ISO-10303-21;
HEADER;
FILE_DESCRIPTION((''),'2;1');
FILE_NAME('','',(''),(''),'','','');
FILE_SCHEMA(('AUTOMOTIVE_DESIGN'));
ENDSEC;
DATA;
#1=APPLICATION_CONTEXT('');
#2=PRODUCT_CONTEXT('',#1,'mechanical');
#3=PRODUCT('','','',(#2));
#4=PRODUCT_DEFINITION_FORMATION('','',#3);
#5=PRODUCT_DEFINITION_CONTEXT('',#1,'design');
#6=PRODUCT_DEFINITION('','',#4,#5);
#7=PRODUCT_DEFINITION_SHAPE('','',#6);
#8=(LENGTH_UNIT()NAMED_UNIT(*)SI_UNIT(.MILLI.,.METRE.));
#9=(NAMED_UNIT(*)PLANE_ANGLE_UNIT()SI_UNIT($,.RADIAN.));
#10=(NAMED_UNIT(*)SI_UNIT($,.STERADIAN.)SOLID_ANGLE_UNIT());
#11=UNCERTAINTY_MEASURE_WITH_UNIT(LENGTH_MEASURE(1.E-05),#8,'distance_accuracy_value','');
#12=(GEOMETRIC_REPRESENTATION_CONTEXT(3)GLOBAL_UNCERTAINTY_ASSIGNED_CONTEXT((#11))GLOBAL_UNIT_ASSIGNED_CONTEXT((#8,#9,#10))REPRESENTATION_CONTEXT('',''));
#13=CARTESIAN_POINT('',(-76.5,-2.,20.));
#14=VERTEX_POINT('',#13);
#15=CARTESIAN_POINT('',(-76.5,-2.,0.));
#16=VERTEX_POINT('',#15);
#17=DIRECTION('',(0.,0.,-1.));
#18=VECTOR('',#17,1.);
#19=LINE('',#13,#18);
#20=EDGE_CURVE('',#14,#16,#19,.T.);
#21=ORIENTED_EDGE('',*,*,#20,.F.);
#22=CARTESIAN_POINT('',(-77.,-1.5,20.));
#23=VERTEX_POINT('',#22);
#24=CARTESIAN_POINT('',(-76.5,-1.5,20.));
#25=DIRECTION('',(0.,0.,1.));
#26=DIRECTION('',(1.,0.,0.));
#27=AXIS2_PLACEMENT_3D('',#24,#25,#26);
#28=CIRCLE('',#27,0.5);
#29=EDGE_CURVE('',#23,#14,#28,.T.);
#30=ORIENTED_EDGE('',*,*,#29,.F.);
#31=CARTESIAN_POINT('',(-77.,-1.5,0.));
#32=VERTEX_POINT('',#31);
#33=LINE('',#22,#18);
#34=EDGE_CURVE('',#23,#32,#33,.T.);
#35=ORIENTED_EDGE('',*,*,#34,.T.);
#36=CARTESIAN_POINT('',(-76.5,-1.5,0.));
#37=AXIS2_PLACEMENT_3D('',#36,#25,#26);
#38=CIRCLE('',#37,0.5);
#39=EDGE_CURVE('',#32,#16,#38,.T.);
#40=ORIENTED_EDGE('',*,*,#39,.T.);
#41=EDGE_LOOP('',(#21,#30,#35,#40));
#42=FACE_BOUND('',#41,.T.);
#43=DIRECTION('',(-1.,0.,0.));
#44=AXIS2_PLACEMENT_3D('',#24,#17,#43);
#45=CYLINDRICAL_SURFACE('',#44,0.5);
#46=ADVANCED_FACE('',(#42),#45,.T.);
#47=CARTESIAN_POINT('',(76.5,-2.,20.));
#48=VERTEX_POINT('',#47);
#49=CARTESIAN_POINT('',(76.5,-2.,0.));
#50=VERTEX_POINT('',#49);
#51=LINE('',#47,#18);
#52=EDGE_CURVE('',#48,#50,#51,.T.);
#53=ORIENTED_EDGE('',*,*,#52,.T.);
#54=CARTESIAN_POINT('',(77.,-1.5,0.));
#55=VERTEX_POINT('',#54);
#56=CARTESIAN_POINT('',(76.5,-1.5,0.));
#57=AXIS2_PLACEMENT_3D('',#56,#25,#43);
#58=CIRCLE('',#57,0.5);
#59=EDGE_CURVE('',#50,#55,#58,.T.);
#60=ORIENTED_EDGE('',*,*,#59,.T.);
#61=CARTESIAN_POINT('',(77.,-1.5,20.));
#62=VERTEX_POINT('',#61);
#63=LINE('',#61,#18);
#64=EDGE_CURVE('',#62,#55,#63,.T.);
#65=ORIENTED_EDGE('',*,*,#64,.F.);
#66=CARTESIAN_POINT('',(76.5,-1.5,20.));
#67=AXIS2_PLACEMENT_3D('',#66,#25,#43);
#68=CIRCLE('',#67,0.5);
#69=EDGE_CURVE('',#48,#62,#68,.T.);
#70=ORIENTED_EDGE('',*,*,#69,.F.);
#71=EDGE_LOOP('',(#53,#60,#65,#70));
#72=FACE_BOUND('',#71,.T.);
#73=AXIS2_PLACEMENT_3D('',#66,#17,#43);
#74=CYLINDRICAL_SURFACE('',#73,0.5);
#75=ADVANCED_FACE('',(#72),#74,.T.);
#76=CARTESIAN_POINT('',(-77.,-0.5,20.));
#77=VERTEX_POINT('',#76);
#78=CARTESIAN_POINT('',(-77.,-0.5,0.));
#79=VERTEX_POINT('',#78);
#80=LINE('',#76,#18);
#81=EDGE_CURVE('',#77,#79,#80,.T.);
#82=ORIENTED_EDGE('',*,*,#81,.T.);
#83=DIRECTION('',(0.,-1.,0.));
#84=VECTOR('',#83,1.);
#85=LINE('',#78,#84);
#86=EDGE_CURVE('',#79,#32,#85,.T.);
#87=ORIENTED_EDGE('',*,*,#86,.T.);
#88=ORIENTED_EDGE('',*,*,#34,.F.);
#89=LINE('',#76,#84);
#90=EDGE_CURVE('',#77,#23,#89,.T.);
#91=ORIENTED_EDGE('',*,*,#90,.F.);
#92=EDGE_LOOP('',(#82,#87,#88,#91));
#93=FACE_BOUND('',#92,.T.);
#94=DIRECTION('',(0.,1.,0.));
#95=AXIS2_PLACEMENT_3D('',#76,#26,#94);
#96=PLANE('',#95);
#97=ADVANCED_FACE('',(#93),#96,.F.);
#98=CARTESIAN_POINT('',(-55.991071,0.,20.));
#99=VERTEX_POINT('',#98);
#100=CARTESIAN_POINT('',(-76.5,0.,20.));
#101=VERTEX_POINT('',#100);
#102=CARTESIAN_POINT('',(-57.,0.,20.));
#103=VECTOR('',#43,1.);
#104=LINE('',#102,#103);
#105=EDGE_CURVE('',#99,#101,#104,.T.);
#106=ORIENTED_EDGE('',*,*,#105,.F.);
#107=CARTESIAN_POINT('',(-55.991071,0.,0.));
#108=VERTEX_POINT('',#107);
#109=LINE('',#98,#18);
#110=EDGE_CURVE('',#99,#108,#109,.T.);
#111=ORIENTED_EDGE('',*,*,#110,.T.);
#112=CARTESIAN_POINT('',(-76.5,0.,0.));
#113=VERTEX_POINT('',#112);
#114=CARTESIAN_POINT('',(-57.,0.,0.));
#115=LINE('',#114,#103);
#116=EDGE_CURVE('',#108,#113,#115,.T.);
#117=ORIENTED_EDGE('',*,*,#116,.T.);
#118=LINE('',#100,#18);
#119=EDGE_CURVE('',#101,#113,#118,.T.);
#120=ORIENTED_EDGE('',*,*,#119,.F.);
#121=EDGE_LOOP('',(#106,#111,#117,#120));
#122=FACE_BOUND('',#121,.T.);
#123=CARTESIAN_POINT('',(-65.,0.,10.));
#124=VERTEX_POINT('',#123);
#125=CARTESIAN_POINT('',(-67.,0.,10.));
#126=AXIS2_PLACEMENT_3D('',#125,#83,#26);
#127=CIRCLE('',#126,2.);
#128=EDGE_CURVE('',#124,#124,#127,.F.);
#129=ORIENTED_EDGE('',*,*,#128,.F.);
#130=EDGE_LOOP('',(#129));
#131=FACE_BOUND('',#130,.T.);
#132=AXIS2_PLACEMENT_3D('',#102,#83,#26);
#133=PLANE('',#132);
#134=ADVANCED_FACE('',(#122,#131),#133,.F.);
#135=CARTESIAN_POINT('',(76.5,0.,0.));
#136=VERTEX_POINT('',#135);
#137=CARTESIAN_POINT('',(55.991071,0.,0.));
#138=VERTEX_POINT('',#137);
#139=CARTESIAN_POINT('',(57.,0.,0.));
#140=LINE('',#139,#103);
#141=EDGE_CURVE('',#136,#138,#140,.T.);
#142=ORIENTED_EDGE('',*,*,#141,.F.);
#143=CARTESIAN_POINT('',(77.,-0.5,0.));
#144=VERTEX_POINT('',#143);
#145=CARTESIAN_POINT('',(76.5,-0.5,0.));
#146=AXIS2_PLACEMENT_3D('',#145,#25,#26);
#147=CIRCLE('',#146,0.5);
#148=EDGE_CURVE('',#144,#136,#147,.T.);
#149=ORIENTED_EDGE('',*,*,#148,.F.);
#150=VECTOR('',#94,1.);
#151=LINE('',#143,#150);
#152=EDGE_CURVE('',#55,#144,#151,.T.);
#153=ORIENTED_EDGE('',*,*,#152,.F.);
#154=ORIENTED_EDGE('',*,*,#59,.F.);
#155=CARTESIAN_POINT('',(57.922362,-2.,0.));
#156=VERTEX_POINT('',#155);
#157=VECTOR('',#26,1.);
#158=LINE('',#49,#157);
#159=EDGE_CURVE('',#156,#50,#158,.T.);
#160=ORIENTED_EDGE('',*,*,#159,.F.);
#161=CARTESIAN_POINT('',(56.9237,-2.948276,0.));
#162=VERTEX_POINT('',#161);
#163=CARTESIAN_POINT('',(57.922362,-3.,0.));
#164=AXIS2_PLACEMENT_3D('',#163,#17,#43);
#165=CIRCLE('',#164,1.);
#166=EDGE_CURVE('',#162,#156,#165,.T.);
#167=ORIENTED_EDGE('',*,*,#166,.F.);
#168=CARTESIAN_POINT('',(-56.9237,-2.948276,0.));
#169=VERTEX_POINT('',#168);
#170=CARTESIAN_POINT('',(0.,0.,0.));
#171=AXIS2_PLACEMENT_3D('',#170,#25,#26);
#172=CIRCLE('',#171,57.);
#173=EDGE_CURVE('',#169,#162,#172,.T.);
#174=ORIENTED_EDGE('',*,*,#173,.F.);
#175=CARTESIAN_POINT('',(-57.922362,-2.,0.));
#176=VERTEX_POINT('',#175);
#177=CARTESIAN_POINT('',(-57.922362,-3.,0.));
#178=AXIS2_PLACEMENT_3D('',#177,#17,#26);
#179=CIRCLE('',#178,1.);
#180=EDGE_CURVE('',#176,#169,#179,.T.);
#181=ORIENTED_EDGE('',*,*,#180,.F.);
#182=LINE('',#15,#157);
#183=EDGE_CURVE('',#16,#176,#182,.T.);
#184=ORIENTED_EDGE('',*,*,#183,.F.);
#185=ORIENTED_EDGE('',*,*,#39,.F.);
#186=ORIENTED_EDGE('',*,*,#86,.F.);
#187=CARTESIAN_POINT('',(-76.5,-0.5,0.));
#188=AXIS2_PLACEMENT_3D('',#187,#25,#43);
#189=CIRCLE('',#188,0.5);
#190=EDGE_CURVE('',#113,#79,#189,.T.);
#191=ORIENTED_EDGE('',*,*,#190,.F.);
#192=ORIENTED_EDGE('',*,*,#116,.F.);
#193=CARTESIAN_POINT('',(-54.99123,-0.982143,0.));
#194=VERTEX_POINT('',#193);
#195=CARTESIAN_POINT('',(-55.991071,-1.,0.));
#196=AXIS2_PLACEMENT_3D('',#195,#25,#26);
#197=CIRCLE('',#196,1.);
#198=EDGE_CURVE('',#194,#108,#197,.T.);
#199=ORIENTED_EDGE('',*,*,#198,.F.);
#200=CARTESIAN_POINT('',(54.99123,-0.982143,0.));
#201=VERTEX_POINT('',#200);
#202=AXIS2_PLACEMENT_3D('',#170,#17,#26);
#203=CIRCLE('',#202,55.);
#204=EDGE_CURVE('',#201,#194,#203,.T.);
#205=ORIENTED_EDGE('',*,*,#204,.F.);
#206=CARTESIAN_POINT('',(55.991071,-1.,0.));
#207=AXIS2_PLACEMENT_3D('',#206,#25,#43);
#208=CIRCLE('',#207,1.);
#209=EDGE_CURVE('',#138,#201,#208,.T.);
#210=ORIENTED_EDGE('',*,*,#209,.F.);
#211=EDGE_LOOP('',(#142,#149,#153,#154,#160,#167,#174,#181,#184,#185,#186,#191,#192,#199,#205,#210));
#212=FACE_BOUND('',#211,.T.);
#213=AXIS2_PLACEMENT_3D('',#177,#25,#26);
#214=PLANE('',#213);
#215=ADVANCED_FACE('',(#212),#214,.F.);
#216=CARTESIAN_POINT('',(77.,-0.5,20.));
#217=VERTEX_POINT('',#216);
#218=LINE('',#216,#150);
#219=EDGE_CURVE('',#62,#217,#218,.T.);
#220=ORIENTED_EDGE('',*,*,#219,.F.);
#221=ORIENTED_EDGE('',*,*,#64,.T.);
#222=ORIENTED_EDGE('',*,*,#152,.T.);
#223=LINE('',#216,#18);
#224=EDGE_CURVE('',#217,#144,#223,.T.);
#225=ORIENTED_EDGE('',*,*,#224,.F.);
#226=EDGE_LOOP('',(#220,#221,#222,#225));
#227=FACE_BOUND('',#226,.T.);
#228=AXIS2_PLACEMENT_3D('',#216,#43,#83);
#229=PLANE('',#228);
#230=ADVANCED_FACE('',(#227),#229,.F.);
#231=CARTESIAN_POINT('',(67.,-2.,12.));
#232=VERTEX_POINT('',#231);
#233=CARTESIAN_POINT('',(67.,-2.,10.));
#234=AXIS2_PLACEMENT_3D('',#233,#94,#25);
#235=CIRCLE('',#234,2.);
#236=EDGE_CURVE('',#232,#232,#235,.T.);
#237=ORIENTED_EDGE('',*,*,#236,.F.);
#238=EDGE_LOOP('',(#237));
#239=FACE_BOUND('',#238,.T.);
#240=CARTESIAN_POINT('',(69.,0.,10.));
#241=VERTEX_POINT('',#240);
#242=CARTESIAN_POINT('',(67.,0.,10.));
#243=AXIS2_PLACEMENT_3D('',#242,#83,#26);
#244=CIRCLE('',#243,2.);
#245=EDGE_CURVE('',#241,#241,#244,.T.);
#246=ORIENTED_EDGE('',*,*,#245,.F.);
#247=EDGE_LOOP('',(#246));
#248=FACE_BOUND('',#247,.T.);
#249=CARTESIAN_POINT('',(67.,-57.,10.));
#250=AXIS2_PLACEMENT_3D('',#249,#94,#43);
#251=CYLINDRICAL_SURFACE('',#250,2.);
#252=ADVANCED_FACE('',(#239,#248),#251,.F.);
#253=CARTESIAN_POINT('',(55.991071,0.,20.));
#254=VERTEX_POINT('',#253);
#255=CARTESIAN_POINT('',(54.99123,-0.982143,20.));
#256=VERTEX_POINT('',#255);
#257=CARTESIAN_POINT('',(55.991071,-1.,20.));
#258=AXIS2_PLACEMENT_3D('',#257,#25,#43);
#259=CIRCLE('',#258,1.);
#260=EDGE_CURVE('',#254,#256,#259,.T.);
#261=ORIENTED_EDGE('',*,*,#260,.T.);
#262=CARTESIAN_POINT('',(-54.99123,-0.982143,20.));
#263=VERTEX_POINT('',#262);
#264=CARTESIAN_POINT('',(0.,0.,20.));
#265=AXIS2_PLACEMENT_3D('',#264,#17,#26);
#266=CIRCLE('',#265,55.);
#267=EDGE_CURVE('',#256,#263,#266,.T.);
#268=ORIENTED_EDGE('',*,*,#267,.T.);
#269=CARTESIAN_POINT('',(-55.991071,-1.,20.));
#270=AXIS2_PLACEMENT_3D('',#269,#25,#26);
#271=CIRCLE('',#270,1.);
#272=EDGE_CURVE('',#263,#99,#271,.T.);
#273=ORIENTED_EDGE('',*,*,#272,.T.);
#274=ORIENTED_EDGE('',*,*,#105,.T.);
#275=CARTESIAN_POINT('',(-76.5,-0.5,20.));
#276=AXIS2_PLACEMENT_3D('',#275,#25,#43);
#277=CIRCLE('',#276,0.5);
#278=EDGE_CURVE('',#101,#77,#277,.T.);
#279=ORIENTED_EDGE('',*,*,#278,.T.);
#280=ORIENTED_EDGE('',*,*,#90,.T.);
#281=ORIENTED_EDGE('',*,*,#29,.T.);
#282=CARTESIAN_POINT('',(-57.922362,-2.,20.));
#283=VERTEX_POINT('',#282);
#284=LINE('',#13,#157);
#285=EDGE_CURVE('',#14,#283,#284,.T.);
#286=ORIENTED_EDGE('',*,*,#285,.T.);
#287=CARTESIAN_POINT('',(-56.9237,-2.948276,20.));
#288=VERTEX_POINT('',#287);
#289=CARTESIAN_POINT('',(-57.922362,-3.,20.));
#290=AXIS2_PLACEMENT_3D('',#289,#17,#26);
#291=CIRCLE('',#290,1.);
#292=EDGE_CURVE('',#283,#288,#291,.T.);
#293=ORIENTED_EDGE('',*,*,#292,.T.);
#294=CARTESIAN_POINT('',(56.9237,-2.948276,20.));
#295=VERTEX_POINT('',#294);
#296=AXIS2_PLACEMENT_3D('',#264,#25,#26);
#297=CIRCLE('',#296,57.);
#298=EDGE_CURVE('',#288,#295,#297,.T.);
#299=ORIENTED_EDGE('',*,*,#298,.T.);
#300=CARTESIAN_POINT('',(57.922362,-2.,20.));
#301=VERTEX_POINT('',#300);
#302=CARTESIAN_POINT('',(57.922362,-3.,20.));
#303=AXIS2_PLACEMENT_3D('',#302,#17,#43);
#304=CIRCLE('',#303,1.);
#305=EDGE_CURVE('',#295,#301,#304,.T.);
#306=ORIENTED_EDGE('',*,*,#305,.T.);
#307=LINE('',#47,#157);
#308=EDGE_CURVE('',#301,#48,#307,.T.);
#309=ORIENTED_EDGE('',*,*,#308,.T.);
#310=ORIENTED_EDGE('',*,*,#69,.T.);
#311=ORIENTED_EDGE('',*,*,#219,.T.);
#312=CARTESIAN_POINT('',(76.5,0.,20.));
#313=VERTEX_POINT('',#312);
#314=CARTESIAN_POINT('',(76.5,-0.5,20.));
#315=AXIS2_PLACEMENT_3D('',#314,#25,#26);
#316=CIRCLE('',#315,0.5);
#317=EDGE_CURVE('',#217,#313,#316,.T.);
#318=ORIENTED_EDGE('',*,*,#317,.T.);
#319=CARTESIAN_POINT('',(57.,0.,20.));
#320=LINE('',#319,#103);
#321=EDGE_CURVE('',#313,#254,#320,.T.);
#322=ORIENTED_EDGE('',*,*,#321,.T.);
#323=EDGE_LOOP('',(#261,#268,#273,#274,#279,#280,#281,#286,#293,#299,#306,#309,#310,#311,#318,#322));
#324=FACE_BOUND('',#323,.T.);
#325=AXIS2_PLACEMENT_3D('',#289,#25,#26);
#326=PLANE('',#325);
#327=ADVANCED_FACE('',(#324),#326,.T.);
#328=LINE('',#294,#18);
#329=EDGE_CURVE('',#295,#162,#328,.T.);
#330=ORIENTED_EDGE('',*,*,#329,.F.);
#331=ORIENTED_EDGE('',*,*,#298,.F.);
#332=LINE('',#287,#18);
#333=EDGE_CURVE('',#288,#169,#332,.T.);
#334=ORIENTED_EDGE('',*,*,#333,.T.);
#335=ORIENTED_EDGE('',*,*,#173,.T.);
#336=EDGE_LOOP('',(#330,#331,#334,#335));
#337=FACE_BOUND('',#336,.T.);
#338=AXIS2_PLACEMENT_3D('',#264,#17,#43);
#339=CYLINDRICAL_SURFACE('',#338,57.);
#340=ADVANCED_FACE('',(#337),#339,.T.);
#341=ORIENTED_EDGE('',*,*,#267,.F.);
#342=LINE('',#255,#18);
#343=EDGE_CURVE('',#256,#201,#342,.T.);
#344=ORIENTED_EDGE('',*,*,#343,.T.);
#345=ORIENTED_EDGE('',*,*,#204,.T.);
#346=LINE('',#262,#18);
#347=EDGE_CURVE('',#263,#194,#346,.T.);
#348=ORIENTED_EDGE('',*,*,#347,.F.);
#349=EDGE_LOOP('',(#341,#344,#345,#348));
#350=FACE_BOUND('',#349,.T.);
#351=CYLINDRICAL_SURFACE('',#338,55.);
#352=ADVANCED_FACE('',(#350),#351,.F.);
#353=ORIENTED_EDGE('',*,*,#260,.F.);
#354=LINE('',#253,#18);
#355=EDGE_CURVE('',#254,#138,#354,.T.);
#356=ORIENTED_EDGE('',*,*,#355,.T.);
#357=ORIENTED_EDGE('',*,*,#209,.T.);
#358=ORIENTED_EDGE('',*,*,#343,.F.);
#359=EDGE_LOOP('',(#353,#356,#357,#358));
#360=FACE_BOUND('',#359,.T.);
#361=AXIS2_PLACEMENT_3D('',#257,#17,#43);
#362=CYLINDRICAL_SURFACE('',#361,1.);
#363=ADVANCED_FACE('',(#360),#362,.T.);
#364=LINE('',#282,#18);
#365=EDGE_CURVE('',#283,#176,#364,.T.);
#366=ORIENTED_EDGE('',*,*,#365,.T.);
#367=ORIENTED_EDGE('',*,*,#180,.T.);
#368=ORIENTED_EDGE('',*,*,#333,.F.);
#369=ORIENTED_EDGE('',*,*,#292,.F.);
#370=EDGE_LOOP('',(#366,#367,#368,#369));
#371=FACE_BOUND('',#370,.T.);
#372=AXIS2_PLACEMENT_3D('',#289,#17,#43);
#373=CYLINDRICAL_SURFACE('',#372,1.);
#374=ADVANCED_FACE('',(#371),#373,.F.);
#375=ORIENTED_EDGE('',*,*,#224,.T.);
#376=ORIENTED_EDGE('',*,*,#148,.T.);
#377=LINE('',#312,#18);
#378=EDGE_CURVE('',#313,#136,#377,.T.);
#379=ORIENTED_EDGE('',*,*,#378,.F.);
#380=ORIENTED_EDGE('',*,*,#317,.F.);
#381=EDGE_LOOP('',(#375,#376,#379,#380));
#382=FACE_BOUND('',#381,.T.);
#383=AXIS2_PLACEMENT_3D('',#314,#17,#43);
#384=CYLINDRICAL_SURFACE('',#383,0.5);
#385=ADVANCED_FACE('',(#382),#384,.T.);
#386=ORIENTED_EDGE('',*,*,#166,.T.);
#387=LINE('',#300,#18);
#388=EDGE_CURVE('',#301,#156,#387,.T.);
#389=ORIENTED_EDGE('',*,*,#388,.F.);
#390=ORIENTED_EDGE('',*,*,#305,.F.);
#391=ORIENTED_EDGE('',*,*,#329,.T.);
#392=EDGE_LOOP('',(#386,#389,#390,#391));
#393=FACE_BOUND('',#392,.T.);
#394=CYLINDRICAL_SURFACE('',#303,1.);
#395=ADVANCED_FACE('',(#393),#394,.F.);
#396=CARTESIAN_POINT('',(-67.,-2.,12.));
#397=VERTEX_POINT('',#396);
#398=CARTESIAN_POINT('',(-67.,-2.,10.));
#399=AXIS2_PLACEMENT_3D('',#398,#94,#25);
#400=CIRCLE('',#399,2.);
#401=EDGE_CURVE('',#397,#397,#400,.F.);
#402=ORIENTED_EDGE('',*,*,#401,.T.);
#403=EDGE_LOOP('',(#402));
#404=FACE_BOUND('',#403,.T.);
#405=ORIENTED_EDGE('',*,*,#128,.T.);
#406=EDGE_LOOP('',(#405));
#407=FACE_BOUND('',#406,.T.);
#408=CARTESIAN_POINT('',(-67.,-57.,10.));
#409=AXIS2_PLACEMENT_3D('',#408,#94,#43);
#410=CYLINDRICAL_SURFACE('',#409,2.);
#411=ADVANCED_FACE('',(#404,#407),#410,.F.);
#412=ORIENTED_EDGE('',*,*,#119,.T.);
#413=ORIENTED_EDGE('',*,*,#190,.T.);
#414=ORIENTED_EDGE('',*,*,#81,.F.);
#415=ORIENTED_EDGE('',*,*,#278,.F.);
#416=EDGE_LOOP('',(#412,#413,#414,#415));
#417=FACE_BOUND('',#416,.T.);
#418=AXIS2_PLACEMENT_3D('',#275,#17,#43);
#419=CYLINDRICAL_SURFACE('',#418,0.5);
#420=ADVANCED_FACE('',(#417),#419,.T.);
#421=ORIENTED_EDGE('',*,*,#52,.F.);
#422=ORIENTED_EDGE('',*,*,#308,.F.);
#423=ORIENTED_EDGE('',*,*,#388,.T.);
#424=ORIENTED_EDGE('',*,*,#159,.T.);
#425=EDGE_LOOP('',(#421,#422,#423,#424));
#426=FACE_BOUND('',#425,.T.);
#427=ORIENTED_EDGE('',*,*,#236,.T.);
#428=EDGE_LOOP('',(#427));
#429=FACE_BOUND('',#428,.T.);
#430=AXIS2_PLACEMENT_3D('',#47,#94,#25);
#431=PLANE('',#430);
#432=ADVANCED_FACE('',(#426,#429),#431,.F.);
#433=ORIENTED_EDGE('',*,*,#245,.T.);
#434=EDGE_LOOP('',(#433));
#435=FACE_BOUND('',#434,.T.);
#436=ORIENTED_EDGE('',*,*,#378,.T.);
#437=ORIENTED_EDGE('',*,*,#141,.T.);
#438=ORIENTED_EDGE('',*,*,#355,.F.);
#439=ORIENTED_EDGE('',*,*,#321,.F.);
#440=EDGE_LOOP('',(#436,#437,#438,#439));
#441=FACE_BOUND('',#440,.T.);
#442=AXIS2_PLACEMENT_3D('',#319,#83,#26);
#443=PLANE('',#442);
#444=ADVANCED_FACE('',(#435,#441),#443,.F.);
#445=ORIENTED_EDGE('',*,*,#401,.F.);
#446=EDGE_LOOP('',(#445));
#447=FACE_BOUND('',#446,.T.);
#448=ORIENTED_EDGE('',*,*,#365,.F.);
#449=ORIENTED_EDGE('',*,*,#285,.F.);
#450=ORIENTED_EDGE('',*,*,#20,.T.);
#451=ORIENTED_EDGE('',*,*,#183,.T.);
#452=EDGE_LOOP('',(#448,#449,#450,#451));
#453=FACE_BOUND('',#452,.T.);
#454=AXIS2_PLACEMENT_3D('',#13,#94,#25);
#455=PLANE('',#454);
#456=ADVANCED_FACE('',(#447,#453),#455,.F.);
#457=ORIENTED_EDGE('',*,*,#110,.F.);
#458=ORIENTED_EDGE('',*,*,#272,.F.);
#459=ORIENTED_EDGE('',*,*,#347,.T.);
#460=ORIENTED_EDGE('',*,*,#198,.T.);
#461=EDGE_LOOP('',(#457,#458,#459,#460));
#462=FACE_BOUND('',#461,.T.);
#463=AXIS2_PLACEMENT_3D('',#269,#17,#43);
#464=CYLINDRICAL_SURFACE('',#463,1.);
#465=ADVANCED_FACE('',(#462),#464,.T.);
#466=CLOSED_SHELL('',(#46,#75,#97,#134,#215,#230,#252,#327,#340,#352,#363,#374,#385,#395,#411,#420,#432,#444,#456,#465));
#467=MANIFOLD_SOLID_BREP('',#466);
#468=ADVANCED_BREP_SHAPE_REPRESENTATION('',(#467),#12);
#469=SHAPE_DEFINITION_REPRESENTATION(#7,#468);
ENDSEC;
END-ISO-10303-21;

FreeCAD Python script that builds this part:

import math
import FreeCAD as App
import Part
import Sketcher

V = App.Vector
Q = App.Units.Quantity

doc = App.newDocument("Part")
body = doc.addObject("PartDesign::Body", "Body")

sketch1 = body.newObject("Sketcher::SketchObject", "Sketch")
sketch1.AttachmentSupport = (doc.getObject("XY_Plane"), [""])
sketch1.MapMode = "FlatFace"
sketch1.addGeometry([
    Part.ArcOfCircle(Part.Circle(V(-55.991071, -1, 0), V(0, 0, 1), 1), math.radians(1.023193), math.radians(90)),
    Part.LineSegment(V(-55.991071, 0, 0), V(-76.5, 0, 0)),
    Part.ArcOfCircle(Part.Circle(V(-76.5, -0.5, 0), V(0, 0, 1), 0.5), math.radians(90), math.radians(180)),
    Part.LineSegment(V(-77, -0.5, 0), V(-77, -1.5, 0)),
    Part.ArcOfCircle(Part.Circle(V(-76.5, -1.5, 0), V(0, 0, 1), 0.5), math.radians(180), math.radians(270)),
    Part.LineSegment(V(-76.5, -2, 0), V(-57.922362, -2, 0)),
    Part.ArcOfCircle(Part.Circle(V(-57.922362, -3, 0), V(0, 0, 1), 1), math.radians(2.964898), math.radians(90)),
    Part.ArcOfCircle(Part.Circle(V(0, 0, 0), V(0, 0, 1), 57), math.radians(-177.035102), math.radians(-2.964898)),
    Part.ArcOfCircle(Part.Circle(V(57.922362, -3, 0), V(0, 0, 1), 1), math.radians(90), math.radians(177.035102)),
    Part.LineSegment(V(57.922362, -2, 0), V(76.5, -2, 0)),
    Part.ArcOfCircle(Part.Circle(V(76.5, -1.5, 0), V(0, 0, 1), 0.5), math.radians(-90), math.radians(0)),
    Part.LineSegment(V(77, -1.5, 0), V(77, -0.5, 0)),
    Part.ArcOfCircle(Part.Circle(V(76.5, -0.5, 0), V(0, 0, 1), 0.5), math.radians(0), math.radians(90)),
    Part.LineSegment(V(76.5, 0, 0), V(55.991071, 0, 0)),
    Part.ArcOfCircle(Part.Circle(V(55.991071, -1, 0), V(0, 0, 1), 1), math.radians(90), math.radians(178.976807)),
    Part.ArcOfCircle(Part.Circle(V(0, 0, 0), V(0, 0, 1), 55), math.radians(-178.976807), math.radians(-1.023193)),
], False)
sketch1.addConstraint([
    Sketcher.Constraint("Tangent", 0, 2, 1, 1),
    Sketcher.Constraint("Tangent", 1, 2, 2, 1),
    Sketcher.Constraint("Tangent", 2, 2, 3, 1),
    Sketcher.Constraint("Tangent", 3, 2, 4, 1),
    Sketcher.Constraint("Tangent", 4, 2, 5, 1),
    Sketcher.Constraint("Tangent", 5, 2, 6, 2),
    Sketcher.Constraint("Tangent", 6, 1, 7, 1),
    Sketcher.Constraint("Tangent", 7, 2, 8, 2),
    Sketcher.Constraint("Tangent", 8, 1, 9, 1),
    Sketcher.Constraint("Tangent", 9, 2, 10, 1),
    Sketcher.Constraint("Tangent", 10, 2, 11, 1),
    Sketcher.Constraint("Tangent", 11, 2, 12, 1),
    Sketcher.Constraint("Tangent", 12, 2, 13, 1),
    Sketcher.Constraint("Tangent", 13, 2, 14, 1),
    Sketcher.Constraint("Tangent", 14, 2, 15, 2),
    Sketcher.Constraint("Tangent", 15, 1, 0, 1),
    Sketcher.Constraint("Horizontal", 1),
    Sketcher.Constraint("Vertical", 3),
    Sketcher.Constraint("Horizontal", 5),
    Sketcher.Constraint("Horizontal", 9),
    Sketcher.Constraint("Vertical", 11),
    Sketcher.Constraint("Horizontal", 13),
    Sketcher.Constraint("Coincident", 7, 3, -1, 1),
    Sketcher.Constraint("Coincident", 15, 3, -1, 1),
    Sketcher.Constraint("Equal", 2, 4),
    Sketcher.Constraint("Equal", 0, 6),
    Sketcher.Constraint("Equal", 6, 8),
    Sketcher.Constraint("Equal", 4, 10),
    Sketcher.Constraint("Equal", 10, 12),
    Sketcher.Constraint("Equal", 8, 14),
    Sketcher.Constraint("Symmetric", 1, 2, 12, 2, -1, 1),
    Sketcher.Constraint("PointOnObject", 0, 2, -1),
    Sketcher.Constraint("Horizontal", 6, 3, 8, 3),
    Sketcher.Constraint("Radius", 0, Q("1 mm")),
    Sketcher.Constraint("Radius", 7, Q("57 mm")),
    Sketcher.Constraint("Radius", 15, Q("55 mm")),
    Sketcher.Constraint("Radius", 2, Q("0.5 mm")),
    Sketcher.Constraint("DistanceY", 3, 2, 3, 1, Q("1 mm")),
    Sketcher.Constraint("DistanceX", 2, 2, -1, 1, Q("77 mm")),
])
pad1 = body.newObject("PartDesign::Pad", "Pad")
pad1.Profile = sketch1
pad1.Length = 20

sketch2 = body.newObject("Sketcher::SketchObject", "Sketch001")
sketch2.AttachmentSupport = (doc.getObject("XZ_Plane"), [""])
sketch2.MapMode = "FlatFace"
sketch2.addGeometry(Part.Circle(V(67, 10, 0), V(0, 0, 1), 2), False)
sketch2.addConstraint([
    Sketcher.Constraint("Diameter", 0, Q("4 mm")),
    Sketcher.Constraint("DistanceX", -1, 1, 0, 3, Q("67 mm")),
    Sketcher.Constraint("DistanceY", -1, 1, 0, 3, Q("10 mm")),
])
pocket1 = body.newObject("PartDesign::Pocket", "Pocket")
pocket1.Profile = sketch2
pocket1.Length = 197.734514
pocket1.Midplane = True
doc.recompute()

mirrored = body.newObject("PartDesign::Mirrored", "Mirrored")
mirrored.Originals = [pocket1]
mirrored.MirrorPlane = (doc.getObject("YZ_Plane"), [""])
body.Tip = mirrored

doc.recompute()
